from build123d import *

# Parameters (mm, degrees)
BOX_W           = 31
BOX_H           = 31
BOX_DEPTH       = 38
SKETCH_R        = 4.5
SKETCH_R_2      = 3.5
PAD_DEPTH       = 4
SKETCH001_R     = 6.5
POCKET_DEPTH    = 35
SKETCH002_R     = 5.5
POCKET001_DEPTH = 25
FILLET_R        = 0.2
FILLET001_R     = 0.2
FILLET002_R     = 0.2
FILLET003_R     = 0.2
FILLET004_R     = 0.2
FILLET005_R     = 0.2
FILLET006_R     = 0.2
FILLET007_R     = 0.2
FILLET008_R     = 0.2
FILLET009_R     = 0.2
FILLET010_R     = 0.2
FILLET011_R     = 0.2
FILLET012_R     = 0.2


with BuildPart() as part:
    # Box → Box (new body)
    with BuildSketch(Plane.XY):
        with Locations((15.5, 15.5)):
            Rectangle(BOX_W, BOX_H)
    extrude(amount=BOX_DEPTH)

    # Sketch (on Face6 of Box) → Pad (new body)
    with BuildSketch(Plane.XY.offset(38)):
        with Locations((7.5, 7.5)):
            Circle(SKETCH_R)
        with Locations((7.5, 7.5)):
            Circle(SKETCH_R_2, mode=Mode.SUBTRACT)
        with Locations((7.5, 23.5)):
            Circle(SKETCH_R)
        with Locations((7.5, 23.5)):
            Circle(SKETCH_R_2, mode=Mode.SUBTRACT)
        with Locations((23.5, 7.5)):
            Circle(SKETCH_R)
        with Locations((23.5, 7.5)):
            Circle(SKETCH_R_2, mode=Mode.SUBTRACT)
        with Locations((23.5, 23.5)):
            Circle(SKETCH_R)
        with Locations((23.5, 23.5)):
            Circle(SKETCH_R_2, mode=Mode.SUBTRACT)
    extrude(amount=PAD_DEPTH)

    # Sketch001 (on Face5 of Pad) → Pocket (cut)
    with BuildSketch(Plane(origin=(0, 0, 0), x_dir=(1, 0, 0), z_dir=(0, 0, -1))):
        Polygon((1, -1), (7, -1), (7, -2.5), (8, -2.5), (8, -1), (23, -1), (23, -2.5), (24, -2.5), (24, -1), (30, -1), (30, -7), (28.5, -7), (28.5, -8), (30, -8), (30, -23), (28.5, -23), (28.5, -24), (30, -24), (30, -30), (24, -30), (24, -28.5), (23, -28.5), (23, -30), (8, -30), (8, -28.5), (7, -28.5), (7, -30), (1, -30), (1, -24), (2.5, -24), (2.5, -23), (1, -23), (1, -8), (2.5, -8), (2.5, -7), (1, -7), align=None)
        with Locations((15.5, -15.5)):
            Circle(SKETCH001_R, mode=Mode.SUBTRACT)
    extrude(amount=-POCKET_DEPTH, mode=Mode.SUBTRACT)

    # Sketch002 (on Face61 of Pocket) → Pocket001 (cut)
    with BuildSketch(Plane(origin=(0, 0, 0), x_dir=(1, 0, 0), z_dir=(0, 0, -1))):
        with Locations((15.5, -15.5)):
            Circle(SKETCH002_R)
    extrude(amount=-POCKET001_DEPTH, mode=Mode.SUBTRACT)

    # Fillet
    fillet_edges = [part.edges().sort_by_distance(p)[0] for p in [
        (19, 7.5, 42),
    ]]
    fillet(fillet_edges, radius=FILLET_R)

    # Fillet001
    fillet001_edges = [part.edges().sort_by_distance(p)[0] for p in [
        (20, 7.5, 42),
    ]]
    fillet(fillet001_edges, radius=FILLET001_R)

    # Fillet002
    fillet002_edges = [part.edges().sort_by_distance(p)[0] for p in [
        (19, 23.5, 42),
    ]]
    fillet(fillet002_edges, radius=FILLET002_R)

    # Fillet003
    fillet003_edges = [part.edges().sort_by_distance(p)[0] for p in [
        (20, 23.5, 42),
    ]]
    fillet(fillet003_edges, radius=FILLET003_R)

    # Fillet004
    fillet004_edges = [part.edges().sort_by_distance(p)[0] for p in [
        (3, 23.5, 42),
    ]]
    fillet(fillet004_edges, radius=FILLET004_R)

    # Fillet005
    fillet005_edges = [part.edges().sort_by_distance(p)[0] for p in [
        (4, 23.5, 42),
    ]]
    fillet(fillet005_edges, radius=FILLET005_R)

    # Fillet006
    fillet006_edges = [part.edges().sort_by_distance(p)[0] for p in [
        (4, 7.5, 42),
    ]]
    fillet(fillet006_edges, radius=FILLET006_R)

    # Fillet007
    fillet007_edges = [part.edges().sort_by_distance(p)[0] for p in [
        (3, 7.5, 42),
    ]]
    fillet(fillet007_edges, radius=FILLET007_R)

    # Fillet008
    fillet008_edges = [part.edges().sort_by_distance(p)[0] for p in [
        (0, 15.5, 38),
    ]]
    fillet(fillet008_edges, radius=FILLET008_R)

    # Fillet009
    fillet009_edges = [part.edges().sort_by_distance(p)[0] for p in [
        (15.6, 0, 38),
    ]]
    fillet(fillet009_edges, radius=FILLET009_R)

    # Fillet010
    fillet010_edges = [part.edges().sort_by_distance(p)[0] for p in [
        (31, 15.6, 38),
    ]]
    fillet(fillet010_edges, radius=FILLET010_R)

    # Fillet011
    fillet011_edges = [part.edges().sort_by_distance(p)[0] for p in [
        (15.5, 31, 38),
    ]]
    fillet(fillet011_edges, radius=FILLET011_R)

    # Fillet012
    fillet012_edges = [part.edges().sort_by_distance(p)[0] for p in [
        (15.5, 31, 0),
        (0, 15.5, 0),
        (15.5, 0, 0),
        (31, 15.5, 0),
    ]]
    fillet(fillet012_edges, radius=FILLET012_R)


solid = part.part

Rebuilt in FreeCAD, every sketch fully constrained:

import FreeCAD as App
import Part
import Sketcher


def edges_at(feature, points):
    """Names of the edges that pass closest to the given points."""
    edges = feature.Shape.Edges
    near = lambda p: min(range(len(edges)), key=lambda i: edges[i].distToShape(Part.Vertex(*p))[0])
    return sorted({f"Edge{near(p) + 1}" for p in points})


def add_polygon(sketch, points):
    """Adds a closed chain of lines whose ends are joined by coincident constraints."""
    first, n = sketch.GeometryCount, len(points)
    for a, b in zip(points, points[1:] + points[:1]):
        sketch.addGeometry(Part.LineSegment(App.Vector(*a, 0), App.Vector(*b, 0)), False)
    for i in range(n):
        sketch.addConstraint(Sketcher.Constraint("Coincident", first + i, 2, first + (i + 1) % n, 1))

doc = App.newDocument("Part")
body = doc.addObject("PartDesign::Body", "Body")

sketch1 = doc.addObject("Sketcher::SketchObject", "Sketch")
body.addObject(sketch1)
sketch1.AttachmentSupport = (doc.XY_Plane, [""])
sketch1.MapMode = "FlatFace"
add_polygon(sketch1, [(0, 31), (0, 0), (31, 0), (31, 31)])
sketch1.addConstraint(Sketcher.Constraint("Vertical", 0))
sketch1.addConstraint(Sketcher.Constraint("Horizontal", 1))
sketch1.addConstraint(Sketcher.Constraint("Vertical", 2))
sketch1.addConstraint(Sketcher.Constraint("Horizontal", 3))
sketch1.addConstraint(Sketcher.Constraint("Coincident", 0, 2, -1, 1))
sketch1.addConstraint(Sketcher.Constraint("Equal", 3, 0))
sketch1.addConstraint(Sketcher.Constraint("DistanceX", 1, 1, 1, 2, 31.0))
pad1 = doc.addObject("PartDesign::Pad", "Pad")
body.addObject(pad1)
pad1.Profile = sketch1
pad1.Length = 38

sketch2 = doc.addObject("Sketcher::SketchObject", "Sketch001")
body.addObject(sketch2)
sketch2.AttachmentSupport = (doc.XY_Plane, [""])
sketch2.MapMode = "FlatFace"
sketch2.AttachmentOffset = App.Placement(App.Vector(0, 0, 38), App.Rotation())
sketch2.addGeometry(Part.Circle(App.Vector(7.5, 7.5, 0), App.Vector(0, 0, 1), 4.5), False)
sketch2.addGeometry(Part.Circle(App.Vector(7.5, 7.5, 0), App.Vector(0, 0, 1), 3.5), False)
sketch2.addGeometry(Part.Circle(App.Vector(7.5, 23.5, 0), App.Vector(0, 0, 1), 4.5), False)
sketch2.addGeometry(Part.Circle(App.Vector(7.5, 23.5, 0), App.Vector(0, 0, 1), 3.5), False)
sketch2.addGeometry(Part.Circle(App.Vector(23.5, 7.5, 0), App.Vector(0, 0, 1), 4.5), False)
sketch2.addGeometry(Part.Circle(App.Vector(23.5, 7.5, 0), App.Vector(0, 0, 1), 3.5), False)
sketch2.addGeometry(Part.Circle(App.Vector(23.5, 23.5, 0), App.Vector(0, 0, 1), 4.5), False)
sketch2.addGeometry(Part.Circle(App.Vector(23.5, 23.5, 0), App.Vector(0, 0, 1), 3.5), False)
sketch2.addConstraint(Sketcher.Constraint("Coincident", 1, 3, 0, 3))
sketch2.addConstraint(Sketcher.Constraint("Coincident", 3, 3, 2, 3))
sketch2.addConstraint(Sketcher.Constraint("Coincident", 5, 3, 4, 3))
sketch2.addConstraint(Sketcher.Constraint("Coincident", 7, 3, 6, 3))
sketch2.addConstraint(Sketcher.Constraint("Equal", 0, 2))
sketch2.addConstraint(Sketcher.Constraint("Equal", 1, 3))
sketch2.addConstraint(Sketcher.Constraint("Equal", 2, 4))
sketch2.addConstraint(Sketcher.Constraint("Equal", 3, 5))
sketch2.addConstraint(Sketcher.Constraint("Equal", 4, 6))
sketch2.addConstraint(Sketcher.Constraint("Equal", 5, 7))
sketch2.addConstraint(Sketcher.Constraint("Horizontal", 1, 3, 4, 3))
sketch2.addConstraint(Sketcher.Constraint("Horizontal", 3, 3, 6, 3))
sketch2.addConstraint(Sketcher.Constraint("Vertical", 1, 3, 2, 3))
sketch2.addConstraint(Sketcher.Constraint("Vertical", 5, 3, 6, 3))
sketch2.addConstraint(Sketcher.Constraint("Diameter", 0, 9.0))
sketch2.addConstraint(Sketcher.Constraint("Diameter", 1, 7.0))
sketch2.addConstraint(Sketcher.Constraint("DistanceY", 0, 3, 2, 3, 16.0))
sketch2.addConstraint(Sketcher.Constraint("DistanceX", 0, 3, 4, 3, 16.0))
sketch2.addConstraint(Sketcher.Constraint("DistanceX", -1, 1, 0, 3, 7.5))
sketch2.addConstraint(Sketcher.Constraint("DistanceY", -1, 1, 0, 3, 7.5))
pad2 = doc.addObject("PartDesign::Pad", "Pad001")
body.addObject(pad2)
pad2.Profile = sketch2
pad2.Length = 4

sketch3 = doc.addObject("Sketcher::SketchObject", "Sketch002")
body.addObject(sketch3)
sketch3.AttachmentSupport = (doc.XY_Plane, [""])
sketch3.MapMode = "FlatFace"
add_polygon(sketch3, [(7, 1), (1, 1), (1, 7), (2.5, 7), (2.5, 8), (1, 8), (1, 23), (2.5, 23), (2.5, 24), (1, 24), (1, 30), (7, 30), (7, 28.5), (8, 28.5), (8, 30), (23, 30), (23, 28.5), (24, 28.5), (24, 30), (30, 30), (30, 24), (28.5, 24), (28.5, 23), (30, 23), (30, 8), (28.5, 8), (28.5, 7), (30, 7), (30, 1), (24, 1), (24, 2.5), (23, 2.5), (23, 1), (8, 1), (8, 2.5), (7, 2.5)])
sketch3.addGeometry(Part.Circle(App.Vector(15.5, 15.5, 0), App.Vector(0, 0, 1), 6.5), False)
sketch3.addConstraint(Sketcher.Constraint("Horizontal", 0))
sketch3.addConstraint(Sketcher.Constraint("Vertical", 1))
sketch3.addConstraint(Sketcher.Constraint("Horizontal", 2))
sketch3.addConstraint(Sketcher.Constraint("Vertical", 3))
sketch3.addConstraint(Sketcher.Constraint("Horizontal", 4))
sketch3.addConstraint(Sketcher.Constraint("Vertical", 5))
sketch3.addConstraint(Sketcher.Constraint("Horizontal", 6))
sketch3.addConstraint(Sketcher.Constraint("Vertical", 7))
sketch3.addConstraint(Sketcher.Constraint("Horizontal", 8))
sketch3.addConstraint(Sketcher.Constraint("Vertical", 9))
sketch3.addConstraint(Sketcher.Constraint("Horizontal", 10))
sketch3.addConstraint(Sketcher.Constraint("Vertical", 11))
sketch3.addConstraint(Sketcher.Constraint("Horizontal", 12))
sketch3.addConstraint(Sketcher.Constraint("Vertical", 13))
sketch3.addConstraint(Sketcher.Constraint("Horizontal", 14))
sketch3.addConstraint(Sketcher.Constraint("Vertical", 15))
sketch3.addConstraint(Sketcher.Constraint("Horizontal", 16))
sketch3.addConstraint(Sketcher.Constraint("Vertical", 17))
sketch3.addConstraint(Sketcher.Constraint("Horizontal", 18))
sketch3.addConstraint(Sketcher.Constraint("Vertical", 19))
sketch3.addConstraint(Sketcher.Constraint("Horizontal", 20))
sketch3.addConstraint(Sketcher.Constraint("Vertical", 21))
sketch3.addConstraint(Sketcher.Constraint("Horizontal", 22))
sketch3.addConstraint(Sketcher.Constraint("Vertical", 23))
sketch3.addConstraint(Sketcher.Constraint("Horizontal", 24))
sketch3.addConstraint(Sketcher.Constraint("Vertical", 25))
sketch3.addConstraint(Sketcher.Constraint("Horizontal", 26))
sketch3.addConstraint(Sketcher.Constraint("Vertical", 27))
sketch3.addConstraint(Sketcher.Constraint("Horizontal", 28))
sketch3.addConstraint(Sketcher.Constraint("Vertical", 29))
sketch3.addConstraint(Sketcher.Constraint("Horizontal", 30))
sketch3.addConstraint(Sketcher.Constraint("Vertical", 31))
sketch3.addConstraint(Sketcher.Constraint("Horizontal", 32))
sketch3.addConstraint(Sketcher.Constraint("Vertical", 33))
sketch3.addConstraint(Sketcher.Constraint("Horizontal", 34))
sketch3.addConstraint(Sketcher.Constraint("Vertical", 35))
sketch3.addConstraint(Sketcher.Constraint("Horizontal", 10, 2, 13, 2))
sketch3.addConstraint(Sketcher.Constraint("Horizontal", 12, 2, 15, 2))
sketch3.addConstraint(Sketcher.Constraint("Horizontal", 14, 2, 17, 2))
sketch3.addConstraint(Sketcher.Constraint("Horizontal", 8, 2, 19, 2))
sketch3.addConstraint(Sketcher.Constraint("Horizontal", 6, 2, 21, 2))
sketch3.addConstraint(Sketcher.Constraint("Horizontal", 4, 2, 23, 2))
sketch3.addConstraint(Sketcher.Constraint("Horizontal", 2, 2, 25, 2))
sketch3.addConstraint(Sketcher.Constraint("Horizontal", 0, 2, 27, 2))
sketch3.addConstraint(Sketcher.Constraint("Horizontal", 28, 2, 31, 2))
sketch3.addConstraint(Sketcher.Constraint("Horizontal", 30, 2, 33, 2))
sketch3.addConstraint(Sketcher.Constraint("Vertical", 1, 2, 4, 2))
sketch3.addConstraint(Sketcher.Constraint("Vertical", 3, 2, 6, 2))
sketch3.addConstraint(Sketcher.Constraint("Vertical", 5, 2, 8, 2))
sketch3.addConstraint(Sketcher.Constraint("Vertical", 19, 2, 22, 2))
sketch3.addConstraint(Sketcher.Constraint("Vertical", 21, 2, 24, 2))
sketch3.addConstraint(Sketcher.Constraint("Vertical", 23, 2, 26, 2))
sketch3.addConstraint(Sketcher.Constraint("Vertical", 17, 2, 28, 2))
sketch3.addConstraint(Sketcher.Constraint("Vertical", 15, 2, 30, 2))
sketch3.addConstraint(Sketcher.Constraint("Vertical", 13, 2, 32, 2))
sketch3.addConstraint(Sketcher.Constraint("Vertical", 11, 2, 34, 2))
sketch3.addConstraint(Sketcher.Constraint("Equal", 12, 16))
sketch3.addConstraint(Sketcher.Constraint("Equal", 10, 18))
sketch3.addConstraint(Sketcher.Constraint("Equal", 8, 20))
sketch3.addConstraint(Sketcher.Constraint("Equal", 28, 1))
sketch3.addConstraint(Sketcher.Constraint("Equal", 34, 3))
sketch3.addConstraint(Sketcher.Constraint("Equal", 32, 5))
sketch3.addConstraint(Sketcher.Constraint("Equal", 3, 7))
sketch3.addConstraint(Sketcher.Constraint("Equal", 1, 9))
sketch3.addConstraint(Sketcher.Constraint("Equal", 26, 11))
sketch3.addConstraint(Sketcher.Constraint("Equal", 17, 29))
sketch3.addConstraint(Sketcher.Constraint("Diameter", 36, 13.0))
sketch3.addConstraint(Sketcher.Constraint("DistanceX", 0, 2, 0, 1, 6.0))
sketch3.addConstraint(Sketcher.Constraint("DistanceX", 12, 1, 12, 2, 1.0))
sketch3.addConstraint(Sketcher.Constraint("DistanceX", 14, 1, 14, 2, 15.0))
sketch3.addConstraint(Sketcher.Constraint("DistanceX", 2, 1, 2, 2, 1.5))
sketch3.addConstraint(Sketcher.Constraint("DistanceX", -1, 1, 0, 2, 1.0))
sketch3.addConstraint(Sketcher.Constraint("DistanceY", -1, 1, 0, 2, 1.0))
sketch3.addConstraint(Sketcher.Constraint("DistanceX", 2, 2, 36, 3, 13.0))
sketch3.addConstraint(Sketcher.Constraint("DistanceY", 36, 3, 15, 2, 13.0))
pocket1 = doc.addObject("PartDesign::Pocket", "Pocket")
body.addObject(pocket1)
pocket1.Profile = sketch3
pocket1.Length = 35
pocket1.Reversed = True

sketch4 = doc.addObject("Sketcher::SketchObject", "Sketch003")
body.addObject(sketch4)
sketch4.AttachmentSupport = (doc.XY_Plane, [""])
sketch4.MapMode = "FlatFace"
sketch4.addGeometry(Part.Circle(App.Vector(16, 16, 0), App.Vector(0, 0, 1), 6), False)
sketch4.addConstraint(Sketcher.Constraint("Diameter", 0, 11.0))
sketch4.addConstraint(Sketcher.Constraint("DistanceX", -1, 1, 0, 3, 15.5))
sketch4.addConstraint(Sketcher.Constraint("DistanceY", -1, 1, 0, 3, 15.5))
pocket2 = doc.addObject("PartDesign::Pocket", "Pocket001")
body.addObject(pocket2)
pocket2.Profile = sketch4
pocket2.Length = 25
pocket2.Reversed = True
doc.recompute()

fillet = doc.addObject("PartDesign::Fillet", "Fillet")
body.addObject(fillet)
fillet.Base = (pocket2, edges_at(pocket2, [(19, 7.5, 42)]))
fillet.Radius = 0.2
doc.recompute()

fillet2 = doc.addObject("PartDesign::Fillet", "Fillet001")
body.addObject(fillet2)
fillet2.Base = (fillet, edges_at(fillet, [(20, 7.5, 42)]))
fillet2.Radius = 0.2
doc.recompute()

fillet3 = doc.addObject("PartDesign::Fillet", "Fillet002")
body.addObject(fillet3)
fillet3.Base = (fillet2, edges_at(fillet2, [(19, 23.5, 42)]))
fillet3.Radius = 0.2
doc.recompute()

fillet4 = doc.addObject("PartDesign::Fillet", "Fillet003")
body.addObject(fillet4)
fillet4.Base = (fillet3, edges_at(fillet3, [(20, 23.5, 42)]))
fillet4.Radius = 0.2
doc.recompute()

fillet5 = doc.addObject("PartDesign::Fillet", "Fillet004")
body.addObject(fillet5)
fillet5.Base = (fillet4, edges_at(fillet4, [(3, 23.5, 42)]))
fillet5.Radius = 0.2
doc.recompute()

fillet6 = doc.addObject("PartDesign::Fillet", "Fillet005")
body.addObject(fillet6)
fillet6.Base = (fillet5, edges_at(fillet5, [(4, 23.5, 42)]))
fillet6.Radius = 0.2
doc.recompute()

fillet7 = doc.addObject("PartDesign::Fillet", "Fillet006")
body.addObject(fillet7)
fillet7.Base = (fillet6, edges_at(fillet6, [(4, 7.5, 42)]))
fillet7.Radius = 0.2
doc.recompute()

fillet8 = doc.addObject("PartDesign::Fillet", "Fillet007")
body.addObject(fillet8)
fillet8.Base = (fillet7, edges_at(fillet7, [(3, 7.5, 42)]))
fillet8.Radius = 0.2
doc.recompute()

fillet9 = doc.addObject("PartDesign::Fillet", "Fillet008")
body.addObject(fillet9)
fillet9.Base = (fillet8, edges_at(fillet8, [(0, 15.5, 38)]))
fillet9.Radius = 0.2
doc.recompute()

fillet10 = doc.addObject("PartDesign::Fillet", "Fillet009")
body.addObject(fillet10)
fillet10.Base = (fillet9, edges_at(fillet9, [(15.6, 0, 38)]))
fillet10.Radius = 0.2
doc.recompute()

fillet11 = doc.addObject("PartDesign::Fillet", "Fillet010")
body.addObject(fillet11)
fillet11.Base = (fillet10, edges_at(fillet10, [(31, 15.6, 38)]))
fillet11.Radius = 0.2
doc.recompute()

fillet12 = doc.addObject("PartDesign::Fillet", "Fillet011")
body.addObject(fillet12)
fillet12.Base = (fillet11, edges_at(fillet11, [(15.5, 31, 38)]))
fillet12.Radius = 0.2
doc.recompute()

fillet13 = doc.addObject("PartDesign::Fillet", "Fillet012")
body.addObject(fillet13)
fillet13.Base = (fillet12, edges_at(fillet12, [
    (15.5, 31, 0),
    (0, 15.5, 0),
    (15.5, 0, 0),
    (31, 15.5, 0),
]))
fillet13.Radius = 0.2

doc.recompute()
